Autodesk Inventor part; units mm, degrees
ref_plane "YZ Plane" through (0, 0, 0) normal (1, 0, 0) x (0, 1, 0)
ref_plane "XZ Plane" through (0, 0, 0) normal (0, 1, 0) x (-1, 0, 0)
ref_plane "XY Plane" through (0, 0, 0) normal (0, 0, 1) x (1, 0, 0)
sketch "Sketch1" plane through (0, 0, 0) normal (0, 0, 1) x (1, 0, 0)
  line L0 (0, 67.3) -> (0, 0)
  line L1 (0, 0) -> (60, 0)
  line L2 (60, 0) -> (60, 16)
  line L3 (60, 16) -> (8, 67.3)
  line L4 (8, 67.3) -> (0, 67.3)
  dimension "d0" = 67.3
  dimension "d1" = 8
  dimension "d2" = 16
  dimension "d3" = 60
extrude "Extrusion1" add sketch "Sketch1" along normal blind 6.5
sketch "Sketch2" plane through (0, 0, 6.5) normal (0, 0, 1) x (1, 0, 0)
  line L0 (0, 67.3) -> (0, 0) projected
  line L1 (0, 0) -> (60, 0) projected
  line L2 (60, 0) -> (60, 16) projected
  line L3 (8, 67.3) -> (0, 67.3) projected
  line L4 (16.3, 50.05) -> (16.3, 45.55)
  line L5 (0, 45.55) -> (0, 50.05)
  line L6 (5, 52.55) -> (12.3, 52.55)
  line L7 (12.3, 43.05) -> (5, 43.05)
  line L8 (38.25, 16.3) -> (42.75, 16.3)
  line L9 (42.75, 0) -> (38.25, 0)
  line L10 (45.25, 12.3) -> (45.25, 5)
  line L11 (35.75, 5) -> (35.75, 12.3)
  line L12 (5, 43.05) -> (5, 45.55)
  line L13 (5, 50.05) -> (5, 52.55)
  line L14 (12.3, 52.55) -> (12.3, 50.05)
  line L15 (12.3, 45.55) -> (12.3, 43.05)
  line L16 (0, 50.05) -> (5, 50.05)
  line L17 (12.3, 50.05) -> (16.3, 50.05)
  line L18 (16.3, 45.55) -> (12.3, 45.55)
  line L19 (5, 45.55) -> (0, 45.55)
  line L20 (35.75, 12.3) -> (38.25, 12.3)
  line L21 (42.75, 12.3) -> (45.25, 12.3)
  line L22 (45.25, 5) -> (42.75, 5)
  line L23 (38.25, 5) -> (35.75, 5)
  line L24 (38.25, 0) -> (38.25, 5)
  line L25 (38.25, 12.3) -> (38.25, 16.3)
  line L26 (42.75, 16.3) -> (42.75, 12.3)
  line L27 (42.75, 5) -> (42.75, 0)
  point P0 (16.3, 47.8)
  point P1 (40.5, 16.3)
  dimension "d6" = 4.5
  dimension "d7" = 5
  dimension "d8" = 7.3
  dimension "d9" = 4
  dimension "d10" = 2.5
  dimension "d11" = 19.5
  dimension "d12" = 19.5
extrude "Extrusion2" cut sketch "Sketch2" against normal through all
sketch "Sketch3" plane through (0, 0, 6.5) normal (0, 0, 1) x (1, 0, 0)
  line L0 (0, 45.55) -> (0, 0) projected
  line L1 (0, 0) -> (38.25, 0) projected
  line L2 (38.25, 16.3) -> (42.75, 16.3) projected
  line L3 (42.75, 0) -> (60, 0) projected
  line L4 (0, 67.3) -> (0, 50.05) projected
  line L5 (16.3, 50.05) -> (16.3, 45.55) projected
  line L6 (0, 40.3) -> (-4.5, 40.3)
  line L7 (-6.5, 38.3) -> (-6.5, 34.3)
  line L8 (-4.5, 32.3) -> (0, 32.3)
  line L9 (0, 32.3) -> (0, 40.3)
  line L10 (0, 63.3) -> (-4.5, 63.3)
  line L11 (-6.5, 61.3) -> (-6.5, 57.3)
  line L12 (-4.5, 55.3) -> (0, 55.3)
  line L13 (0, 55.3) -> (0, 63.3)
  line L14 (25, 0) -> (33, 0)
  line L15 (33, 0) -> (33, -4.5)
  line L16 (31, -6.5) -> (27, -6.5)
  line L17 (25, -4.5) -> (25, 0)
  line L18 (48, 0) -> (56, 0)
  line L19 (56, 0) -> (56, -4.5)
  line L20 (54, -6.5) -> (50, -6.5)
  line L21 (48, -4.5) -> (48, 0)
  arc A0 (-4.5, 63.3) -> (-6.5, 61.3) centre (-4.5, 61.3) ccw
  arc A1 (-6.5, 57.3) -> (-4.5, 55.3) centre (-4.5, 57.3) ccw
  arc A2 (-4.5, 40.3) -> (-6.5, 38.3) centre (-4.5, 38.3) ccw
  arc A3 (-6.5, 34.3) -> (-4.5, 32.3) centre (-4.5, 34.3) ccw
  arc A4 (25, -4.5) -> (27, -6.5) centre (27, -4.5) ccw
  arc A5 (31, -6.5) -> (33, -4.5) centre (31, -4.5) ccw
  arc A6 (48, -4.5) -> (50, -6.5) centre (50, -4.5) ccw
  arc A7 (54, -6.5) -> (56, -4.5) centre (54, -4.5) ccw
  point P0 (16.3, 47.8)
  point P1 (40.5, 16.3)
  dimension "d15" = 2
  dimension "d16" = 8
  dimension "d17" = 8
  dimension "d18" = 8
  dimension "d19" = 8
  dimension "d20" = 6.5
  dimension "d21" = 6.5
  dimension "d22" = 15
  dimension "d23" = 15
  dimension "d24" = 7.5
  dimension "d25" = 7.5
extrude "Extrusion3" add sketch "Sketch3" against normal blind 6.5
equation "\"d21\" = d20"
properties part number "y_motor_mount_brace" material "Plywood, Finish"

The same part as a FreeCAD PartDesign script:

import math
import FreeCAD as App
import Part
import Sketcher
from FreeCAD import Vector
Q = App.Units.Quantity

doc = App.newDocument("Part")
body = doc.addObject("PartDesign::Body", "Body")

# Sketch on XY plane
sketch1 = doc.addObject("Sketcher::SketchObject", "Sketch")
body.addObject(sketch1)
sketch1.AttachmentSupport = (doc.XY_Plane, [""])
sketch1.MapMode = "FlatFace"
sketch1.addGeometry([
    Part.LineSegment(Vector(8, 67.3, 0), Vector(0, 67.3, 0)),  # 0
    Part.LineSegment(Vector(0, 67.3, 0), Vector(0, 0, 0)),  # 1
    Part.LineSegment(Vector(0, 0, 0), Vector(60, 0, 0)),  # 2
    Part.LineSegment(Vector(60, 0, 0), Vector(60, 16, 0)),  # 3
    Part.LineSegment(Vector(60, 16, 0), Vector(8, 67.3, 0)),  # 4
], False)
sketch1.addConstraint([
    Sketcher.Constraint("Coincident", 0, 2, 1, 1),
    Sketcher.Constraint("Coincident", 1, 2, 2, 1),
    Sketcher.Constraint("Coincident", 2, 2, 3, 1),
    Sketcher.Constraint("Coincident", 3, 2, 4, 1),
    Sketcher.Constraint("Coincident", 4, 2, 0, 1),
    Sketcher.Constraint("Horizontal", 0),
    Sketcher.Constraint("Vertical", 1),
    Sketcher.Constraint("Horizontal", 2),
    Sketcher.Constraint("Vertical", 3),
    Sketcher.Constraint("Coincident", 1, 2, -1, 1),
    Sketcher.Constraint("DistanceX", 0, 2, 0, 1, Q("8 mm")),
    Sketcher.Constraint("DistanceX", 2, 1, 2, 2, Q("60 mm")),
    Sketcher.Constraint("DistanceY", 3, 1, 3, 2, Q("16 mm")),
    Sketcher.Constraint("DistanceY", 1, 2, 1, 1, Q("67.3 mm")),
])
pad1 = doc.addObject("PartDesign::Pad", "Pad")
body.addObject(pad1)
pad1.Profile = sketch1
pad1.Length = 6.5

# Sketch on XY plane
sketch2 = doc.addObject("Sketcher::SketchObject", "Sketch001")
body.addObject(sketch2)
sketch2.AttachmentSupport = (doc.XY_Plane, [""])
sketch2.MapMode = "FlatFace"
sketch2.AttachmentOffset = App.Placement(Vector(0, 0, 6.5), App.Rotation())
sketch2.addGeometry([
    Part.LineSegment(Vector(5, 50.05, 0), Vector(0, 50.05, 0)),  # 0
    Part.LineSegment(Vector(0, 50.05, 0), Vector(0, 45.55, 0)),  # 1
    Part.LineSegment(Vector(0, 45.55, 0), Vector(5, 45.55, 0)),  # 2
    Part.LineSegment(Vector(5, 45.55, 0), Vector(5, 43.05, 0)),  # 3
    Part.LineSegment(Vector(5, 43.05, 0), Vector(12.3, 43.05, 0)),  # 4
    Part.LineSegment(Vector(12.3, 43.05, 0), Vector(12.3, 45.55, 0)),  # 5
    Part.LineSegment(Vector(12.3, 45.55, 0), Vector(16.3, 45.55, 0)),  # 6
    Part.LineSegment(Vector(16.3, 45.55, 0), Vector(16.3, 50.05, 0)),  # 7
    Part.LineSegment(Vector(16.3, 50.05, 0), Vector(12.3, 50.05, 0)),  # 8
    Part.LineSegment(Vector(12.3, 50.05, 0), Vector(12.3, 52.55, 0)),  # 9
    Part.LineSegment(Vector(12.3, 52.55, 0), Vector(5, 52.55, 0)),  # 10
    Part.LineSegment(Vector(5, 52.55, 0), Vector(5, 50.05, 0)),  # 11
    Part.LineSegment(Vector(38.25, 5, 0), Vector(38.25, 0, 0)),  # 12
    Part.LineSegment(Vector(38.25, 0, 0), Vector(42.75, 0, 0)),  # 13
    Part.LineSegment(Vector(42.75, 0, 0), Vector(42.75, 5, 0)),  # 14
    Part.LineSegment(Vector(42.75, 5, 0), Vector(45.25, 5, 0)),  # 15
    Part.LineSegment(Vector(45.25, 5, 0), Vector(45.25, 12.3, 0)),  # 16
    Part.LineSegment(Vector(45.25, 12.3, 0), Vector(42.75, 12.3, 0)),  # 17
    Part.LineSegment(Vector(42.75, 12.3, 0), Vector(42.75, 16.3, 0)),  # 18
    Part.LineSegment(Vector(42.75, 16.3, 0), Vector(38.25, 16.3, 0)),  # 19
    Part.LineSegment(Vector(38.25, 16.3, 0), Vector(38.25, 12.3, 0)),  # 20
    Part.LineSegment(Vector(38.25, 12.3, 0), Vector(35.75, 12.3, 0)),  # 21
    Part.LineSegment(Vector(35.75, 12.3, 0), Vector(35.75, 5, 0)),  # 22
    Part.LineSegment(Vector(35.75, 5, 0), Vector(38.25, 5, 0)),  # 23
], False)
sketch2.addConstraint([
    Sketcher.Constraint("Coincident", 0, 2, 1, 1),
    Sketcher.Constraint("Coincident", 1, 2, 2, 1),
    Sketcher.Constraint("Coincident", 2, 2, 3, 1),
    Sketcher.Constraint("Coincident", 3, 2, 4, 1),
    Sketcher.Constraint("Coincident", 4, 2, 5, 1),
    Sketcher.Constraint("Coincident", 5, 2, 6, 1),
    Sketcher.Constraint("Coincident", 6, 2, 7, 1),
    Sketcher.Constraint("Coincident", 7, 2, 8, 1),
    Sketcher.Constraint("Coincident", 8, 2, 9, 1),
    Sketcher.Constraint("Coincident", 9, 2, 10, 1),
    Sketcher.Constraint("Coincident", 10, 2, 11, 1),
    Sketcher.Constraint("Coincident", 11, 2, 0, 1),
    Sketcher.Constraint("Coincident", 12, 2, 13, 1),
    Sketcher.Constraint("Coincident", 13, 2, 14, 1),
    Sketcher.Constraint("Coincident", 14, 2, 15, 1),
    Sketcher.Constraint("Coincident", 15, 2, 16, 1),
    Sketcher.Constraint("Coincident", 16, 2, 17, 1),
    Sketcher.Constraint("Coincident", 17, 2, 18, 1),
    Sketcher.Constraint("Coincident", 18, 2, 19, 1),
    Sketcher.Constraint("Coincident", 19, 2, 20, 1),
    Sketcher.Constraint("Coincident", 20, 2, 21, 1),
    Sketcher.Constraint("Coincident", 21, 2, 22, 1),
    Sketcher.Constraint("Coincident", 22, 2, 23, 1),
    Sketcher.Constraint("Coincident", 23, 2, 12, 1),
    Sketcher.Constraint("Horizontal", 0),
    Sketcher.Constraint("Vertical", 1),
    Sketcher.Constraint("Horizontal", 2),
    Sketcher.Constraint("Vertical", 3),
    Sketcher.Constraint("Horizontal", 4),
    Sketcher.Constraint("Vertical", 5),
    Sketcher.Constraint("Horizontal", 6),
    Sketcher.Constraint("Vertical", 7),
    Sketcher.Constraint("Horizontal", 8),
    Sketcher.Constraint("Vertical", 9),
    Sketcher.Constraint("Horizontal", 10),
    Sketcher.Constraint("Vertical", 11),
    Sketcher.Constraint("Vertical", 12),
    Sketcher.Constraint("Horizontal", 13),
    Sketcher.Constraint("Vertical", 14),
    Sketcher.Constraint("Horizontal", 15),
    Sketcher.Constraint("Vertical", 16),
    Sketcher.Constraint("Horizontal", 17),
    Sketcher.Constraint("Vertical", 18),
    Sketcher.Constraint("Horizontal", 19),
    Sketcher.Constraint("Vertical", 20),
    Sketcher.Constraint("Horizontal", 21),
    Sketcher.Constraint("Vertical", 22),
    Sketcher.Constraint("Horizontal", 23),
    Sketcher.Constraint("PointOnObject", 0, 2, -2),
    Sketcher.Constraint("PointOnObject", 12, 2, -1),
    Sketcher.Constraint("Horizontal", 2, 2, 5, 2),
    Sketcher.Constraint("Horizontal", 0, 2, 7, 2),
    Sketcher.Constraint("Horizontal", 17, 2, 20, 2),
    Sketcher.Constraint("Horizontal", 15, 2, 22, 2),
    Sketcher.Constraint("Vertical", 5, 2, 8, 2),
    Sketcher.Constraint("Vertical", 3, 2, 10, 2),
    Sketcher.Constraint("Vertical", 14, 2, 17, 2),
    Sketcher.Constraint("Vertical", 12, 2, 19, 2),
    Sketcher.Constraint("Equal", 17, 21),
    Sketcher.Constraint("Equal", 19, 1),
    Sketcher.Constraint("Equal", 23, 3),
    Sketcher.Constraint("Equal", 5, 9),
    Sketcher.Constraint("Equal", 2, 12),
    Sketcher.Constraint("Equal", 10, 16),
    Sketcher.Constraint("Equal", 8, 18),
    Sketcher.Constraint("DistanceX", 0, 2, 0, 1, Q("5 mm")),
    Sketcher.Constraint("DistanceX", 6, 1, 6, 2, Q("4 mm")),
    Sketcher.Constraint("DistanceX", 4, 1, 4, 2, Q("7.3 mm")),
    Sketcher.Constraint("DistanceX", 13, 1, 13, 2, Q("4.5 mm")),
    Sketcher.Constraint("DistanceX", 15, 1, 15, 2, Q("2.5 mm")),
    Sketcher.Constraint("DistanceY", -1, 1, 0, 2, Q("50.05 mm")),
    Sketcher.Constraint("DistanceX", -1, 1, 12, 2, Q("38.25 mm")),
])
pocket1 = doc.addObject("PartDesign::Pocket", "Pocket")
body.addObject(pocket1)
pocket1.Profile = sketch2
pocket1.Type = "ThroughAll"

# Sketch on XY plane
sketch3 = doc.addObject("Sketcher::SketchObject", "Sketch002")
body.addObject(sketch3)
sketch3.AttachmentSupport = (doc.XY_Plane, [""])
sketch3.MapMode = "FlatFace"
sketch3.AttachmentOffset = App.Placement(Vector(0, 0, 6.5), App.Rotation())
sketch3.addGeometry([
    Part.LineSegment(Vector(33, 0, 0), Vector(25, 0, 0)),  # 0
    Part.LineSegment(Vector(25, 0, 0), Vector(25, -4.5, 0)),  # 1
    Part.ArcOfCircle(Part.Circle(Vector(27, -4.5, 0), Vector(0, 0, 1), 2), math.radians(180), math.radians(270)),  # 2
    Part.LineSegment(Vector(27, -6.5, 0), Vector(31, -6.5, 0)),  # 3
    Part.ArcOfCircle(Part.Circle(Vector(31, -4.5, 0), Vector(0, 0, 1), 2), math.radians(-90), math.radians(0)),  # 4
    Part.LineSegment(Vector(33, -4.5, 0), Vector(33, 0, 0)),  # 5
    Part.LineSegment(Vector(0, 32.3, 0), Vector(0, 40.3, 0)),  # 6
    Part.LineSegment(Vector(0, 40.3, 0), Vector(-4.5, 40.3, 0)),  # 7
    Part.ArcOfCircle(Part.Circle(Vector(-4.5, 38.3, 0), Vector(0, 0, 1), 2), math.radians(90), math.radians(180)),  # 8
    Part.LineSegment(Vector(-6.5, 38.3, 0), Vector(-6.5, 34.3, 0)),  # 9
    Part.ArcOfCircle(Part.Circle(Vector(-4.5, 34.3, 0), Vector(0, 0, 1), 2), math.radians(180), math.radians(270)),  # 10
    Part.LineSegment(Vector(-4.5, 32.3, 0), Vector(0, 32.3, 0)),  # 11
    Part.LineSegment(Vector(56, 0, 0), Vector(48, 0, 0)),  # 12
    Part.LineSegment(Vector(48, 0, 0), Vector(48, -4.5, 0)),  # 13
    Part.ArcOfCircle(Part.Circle(Vector(50, -4.5, 0), Vector(0, 0, 1), 2), math.radians(180), math.radians(270)),  # 14
    Part.LineSegment(Vector(50, -6.5, 0), Vector(54, -6.5, 0)),  # 15
    Part.ArcOfCircle(Part.Circle(Vector(54, -4.5, 0), Vector(0, 0, 1), 2), math.radians(-90), math.radians(0)),  # 16
    Part.LineSegment(Vector(56, -4.5, 0), Vector(56, 0, 0)),  # 17
    Part.LineSegment(Vector(0, 55.3, 0), Vector(0, 63.3, 0)),  # 18
    Part.LineSegment(Vector(0, 63.3, 0), Vector(-4.5, 63.3, 0)),  # 19
    Part.ArcOfCircle(Part.Circle(Vector(-4.5, 61.3, 0), Vector(0, 0, 1), 2), math.radians(90), math.radians(180)),  # 20
    Part.LineSegment(Vector(-6.5, 61.3, 0), Vector(-6.5, 57.3, 0)),  # 21
    Part.ArcOfCircle(Part.Circle(Vector(-4.5, 57.3, 0), Vector(0, 0, 1), 2), math.radians(180), math.radians(270)),  # 22
    Part.LineSegment(Vector(-4.5, 55.3, 0), Vector(0, 55.3, 0)),  # 23
], False)
sketch3.addConstraint([
    Sketcher.Constraint("Coincident", 0, 2, 1, 1),
    Sketcher.Constraint("Tangent", 1, 2, 2, 1),
    Sketcher.Constraint("Tangent", 2, 2, 3, 1),
    Sketcher.Constraint("Tangent", 3, 2, 4, 1),
    Sketcher.Constraint("Tangent", 4, 2, 5, 1),
    Sketcher.Constraint("Coincident", 5, 2, 0, 1),
    Sketcher.Constraint("Coincident", 6, 2, 7, 1),
    Sketcher.Constraint("Tangent", 7, 2, 8, 1),
    Sketcher.Constraint("Tangent", 8, 2, 9, 1),
    Sketcher.Constraint("Tangent", 9, 2, 10, 1),
    Sketcher.Constraint("Tangent", 10, 2, 11, 1),
    Sketcher.Constraint("Coincident", 11, 2, 6, 1),
    Sketcher.Constraint("Coincident", 12, 2, 13, 1),
    Sketcher.Constraint("Tangent", 13, 2, 14, 1),
    Sketcher.Constraint("Tangent", 14, 2, 15, 1),
    Sketcher.Constraint("Tangent", 15, 2, 16, 1),
    Sketcher.Constraint("Tangent", 16, 2, 17, 1),
    Sketcher.Constraint("Coincident", 17, 2, 12, 1),
    Sketcher.Constraint("Coincident", 18, 2, 19, 1),
    Sketcher.Constraint("Tangent", 19, 2, 20, 1),
    Sketcher.Constraint("Tangent", 20, 2, 21, 1),
    Sketcher.Constraint("Tangent", 21, 2, 22, 1),
    Sketcher.Constraint("Tangent", 22, 2, 23, 1),
    Sketcher.Constraint("Coincident", 23, 2, 18, 1),
    Sketcher.Constraint("Horizontal", 0),
    Sketcher.Constraint("Vertical", 1),
    Sketcher.Constraint("Horizontal", 3),
    Sketcher.Constraint("Vertical", 5),
    Sketcher.Constraint("Vertical", 6),
    Sketcher.Constraint("Horizontal", 7),
    Sketcher.Constraint("Vertical", 9),
    Sketcher.Constraint("Horizontal", 11),
    Sketcher.Constraint("Horizontal", 12),
    Sketcher.Constraint("Vertical", 13),
    Sketcher.Constraint("Horizontal", 15),
    Sketcher.Constraint("Vertical", 17),
    Sketcher.Constraint("Vertical", 18),
    Sketcher.Constraint("Horizontal", 19),
    Sketcher.Constraint("Vertical", 21),
    Sketcher.Constraint("Horizontal", 23),
    Sketcher.Constraint("Equal", 2, 4),
    Sketcher.Constraint("Equal", 4, 8),
    Sketcher.Constraint("Equal", 8, 10),
    Sketcher.Constraint("Equal", 10, 14),
    Sketcher.Constraint("Equal", 14, 16),
    Sketcher.Constraint("Equal", 16, 20),
    Sketcher.Constraint("Equal", 20, 22),
    Sketcher.Constraint("PointOnObject", 0, 2, -1),
    Sketcher.Constraint("PointOnObject", 6, 2, -2),
    Sketcher.Constraint("PointOnObject", 12, 2, -1),
    Sketcher.Constraint("PointOnObject", 18, 2, -2),
    Sketcher.Constraint("Horizontal", 4, 3, 14, 3),
    Sketcher.Constraint("Vertical", 10, 3, 20, 3),
    Sketcher.Constraint("Equal", 0, 12),
    Sketcher.Constraint("Equal", 23, 1),
    Sketcher.Constraint("Equal", 12, 6),
    Sketcher.Constraint("Equal", 6, 18),
    Sketcher.Constraint("Radius", 2, Q("2 mm")),
    Sketcher.Constraint("DistanceX", 0, 2, 0, 1, Q("8 mm")),
    Sketcher.Constraint("DistanceX", 5, 2, 12, 2, Q("15 mm")),
    Sketcher.Constraint("DistanceY", 2, 2, -1, 1, Q("6.5 mm")),
    Sketcher.Constraint("DistanceX", -1, 1, 2, 3, Q("27 mm")),
    Sketcher.Constraint("DistanceY", 8, 3, 20, 3, Q("23 mm")),
    Sketcher.Constraint("DistanceY", -1, 1, 8, 3, Q("38.3 mm")),
])
pad2 = doc.addObject("PartDesign::Pad", "Pad001")
body.addObject(pad2)
pad2.Profile = sketch3
pad2.Length = 6.5
pad2.Reversed = True

doc.recompute()
